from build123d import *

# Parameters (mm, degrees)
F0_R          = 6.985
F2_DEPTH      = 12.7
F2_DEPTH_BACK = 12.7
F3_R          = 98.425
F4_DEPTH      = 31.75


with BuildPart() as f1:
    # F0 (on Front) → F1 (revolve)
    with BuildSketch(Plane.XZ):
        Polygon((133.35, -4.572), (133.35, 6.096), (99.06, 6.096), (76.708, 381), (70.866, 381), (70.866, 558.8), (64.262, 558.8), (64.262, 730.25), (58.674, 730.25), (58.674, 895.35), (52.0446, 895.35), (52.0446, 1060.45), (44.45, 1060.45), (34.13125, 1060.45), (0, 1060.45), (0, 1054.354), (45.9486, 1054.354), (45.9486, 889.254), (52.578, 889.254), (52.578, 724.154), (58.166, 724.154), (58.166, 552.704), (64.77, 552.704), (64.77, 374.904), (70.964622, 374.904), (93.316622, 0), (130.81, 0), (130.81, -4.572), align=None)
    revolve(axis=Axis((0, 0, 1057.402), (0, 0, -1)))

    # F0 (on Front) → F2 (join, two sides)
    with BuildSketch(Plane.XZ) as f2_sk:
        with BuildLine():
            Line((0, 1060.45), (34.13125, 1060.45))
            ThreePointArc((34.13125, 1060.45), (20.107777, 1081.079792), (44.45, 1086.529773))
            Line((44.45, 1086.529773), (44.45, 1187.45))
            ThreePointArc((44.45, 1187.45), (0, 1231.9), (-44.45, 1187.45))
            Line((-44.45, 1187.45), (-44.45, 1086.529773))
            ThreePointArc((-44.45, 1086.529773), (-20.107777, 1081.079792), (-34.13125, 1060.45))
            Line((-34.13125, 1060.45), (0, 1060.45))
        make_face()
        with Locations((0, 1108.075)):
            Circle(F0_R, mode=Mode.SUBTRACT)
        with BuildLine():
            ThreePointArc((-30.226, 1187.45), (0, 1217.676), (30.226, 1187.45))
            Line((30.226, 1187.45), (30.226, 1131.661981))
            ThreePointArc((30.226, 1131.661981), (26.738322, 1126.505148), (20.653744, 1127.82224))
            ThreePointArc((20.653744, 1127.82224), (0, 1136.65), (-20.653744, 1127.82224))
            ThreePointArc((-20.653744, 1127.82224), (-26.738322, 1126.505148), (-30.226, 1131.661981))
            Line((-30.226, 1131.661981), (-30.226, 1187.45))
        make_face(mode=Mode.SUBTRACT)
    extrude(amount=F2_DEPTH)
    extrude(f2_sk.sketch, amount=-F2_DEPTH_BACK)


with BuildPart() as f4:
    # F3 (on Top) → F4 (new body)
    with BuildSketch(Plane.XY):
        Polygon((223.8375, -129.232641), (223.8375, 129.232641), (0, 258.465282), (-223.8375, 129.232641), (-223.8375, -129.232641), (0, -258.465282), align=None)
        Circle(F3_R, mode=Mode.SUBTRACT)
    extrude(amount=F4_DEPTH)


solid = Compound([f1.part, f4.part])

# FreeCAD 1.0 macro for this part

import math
import FreeCAD as App
import Part
import Sketcher
from FreeCAD import Vector
Q = App.Units.Quantity

doc = App.newDocument("Part")
body = doc.addObject("PartDesign::Body", "Body")

# Sketch on XZ plane
sketch1 = doc.addObject("Sketcher::SketchObject", "Sketch")
body.addObject(sketch1)
sketch1.AttachmentSupport = (doc.XZ_Plane, [""])
sketch1.MapMode = "FlatFace"
sketch1.addGeometry(Part.LineSegment(Vector(133.3, -4.6, 0), Vector(133.3, 6.1, 0)), False)
sketch1.addGeometry(Part.LineSegment(Vector(133.3, 6.1, 0), Vector(99.1, 6.1, 0)), False)
sketch1.addGeometry(Part.LineSegment(Vector(99.1, 6.1, 0), Vector(76.7, 381, 0)), False)
sketch1.addGeometry(Part.LineSegment(Vector(76.7, 381, 0), Vector(70.9, 381, 0)), False)
sketch1.addGeometry(Part.LineSegment(Vector(70.9, 381, 0), Vector(70.9, 558.8, 0)), False)
sketch1.addGeometry(Part.LineSegment(Vector(70.9, 558.8, 0), Vector(64.3, 558.8, 0)), False)
sketch1.addGeometry(Part.LineSegment(Vector(64.3, 558.8, 0), Vector(64.3, 730.2, 0)), False)
sketch1.addGeometry(Part.LineSegment(Vector(64.3, 730.2, 0), Vector(58.7, 730.2, 0)), False)
sketch1.addGeometry(Part.LineSegment(Vector(58.7, 730.2, 0), Vector(58.7, 895.4, 0)), False)
sketch1.addGeometry(Part.LineSegment(Vector(58.7, 895.4, 0), Vector(52, 895.4, 0)), False)
sketch1.addGeometry(Part.LineSegment(Vector(52, 895.4, 0), Vector(52, 1060.5, 0)), False)
sketch1.addGeometry(Part.LineSegment(Vector(52, 1060.5, 0), Vector(0, 1060.5, 0)), False)
sketch1.addGeometry(Part.LineSegment(Vector(0, 1060.5, 0), Vector(0, 1054.4, 0)), False)
sketch1.addGeometry(Part.LineSegment(Vector(0, 1054.4, 0), Vector(45.9, 1054.4, 0)), False)
sketch1.addGeometry(Part.LineSegment(Vector(45.9, 1054.4, 0), Vector(45.9, 889.3, 0)), False)
sketch1.addGeometry(Part.LineSegment(Vector(45.9, 889.3, 0), Vector(52.6, 889.3, 0)), False)
sketch1.addGeometry(Part.LineSegment(Vector(52.6, 889.3, 0), Vector(52.6, 724.2, 0)), False)
sketch1.addGeometry(Part.LineSegment(Vector(52.6, 724.2, 0), Vector(58.2, 724.2, 0)), False)
sketch1.addGeometry(Part.LineSegment(Vector(58.2, 724.2, 0), Vector(58.2, 552.7, 0)), False)
sketch1.addGeometry(Part.LineSegment(Vector(58.2, 552.7, 0), Vector(64.8, 552.7, 0)), False)
sketch1.addGeometry(Part.LineSegment(Vector(64.8, 552.7, 0), Vector(64.8, 374.9, 0)), False)
sketch1.addGeometry(Part.LineSegment(Vector(64.8, 374.9, 0), Vector(71, 374.9, 0)), False)
sketch1.addGeometry(Part.LineSegment(Vector(71, 374.9, 0), Vector(93.3, 0, 0)), False)
sketch1.addGeometry(Part.LineSegment(Vector(93.3, 0, 0), Vector(130.8, 0, 0)), False)
sketch1.addGeometry(Part.LineSegment(Vector(130.8, 0, 0), Vector(130.8, -4.6, 0)), False)
sketch1.addGeometry(Part.LineSegment(Vector(130.8, -4.6, 0), Vector(133.3, -4.6, 0)), False)
sketch1.addConstraint(Sketcher.Constraint("Coincident", 0, 2, 1, 1))
sketch1.addConstraint(Sketcher.Constraint("Coincident", 1, 2, 2, 1))
sketch1.addConstraint(Sketcher.Constraint("Coincident", 2, 2, 3, 1))
sketch1.addConstraint(Sketcher.Constraint("Coincident", 3, 2, 4, 1))
sketch1.addConstraint(Sketcher.Constraint("Coincident", 4, 2, 5, 1))
sketch1.addConstraint(Sketcher.Constraint("Coincident", 5, 2, 6, 1))
sketch1.addConstraint(Sketcher.Constraint("Coincident", 6, 2, 7, 1))
sketch1.addConstraint(Sketcher.Constraint("Coincident", 7, 2, 8, 1))
sketch1.addConstraint(Sketcher.Constraint("Coincident", 8, 2, 9, 1))
sketch1.addConstraint(Sketcher.Constraint("Coincident", 9, 2, 10, 1))
sketch1.addConstraint(Sketcher.Constraint("Coincident", 10, 2, 11, 1))
sketch1.addConstraint(Sketcher.Constraint("Coincident", 11, 2, 12, 1))
sketch1.addConstraint(Sketcher.Constraint("Coincident", 12, 2, 13, 1))
sketch1.addConstraint(Sketcher.Constraint("Coincident", 13, 2, 14, 1))
sketch1.addConstraint(Sketcher.Constraint("Coincident", 14, 2, 15, 1))
sketch1.addConstraint(Sketcher.Constraint("Coincident", 15, 2, 16, 1))
sketch1.addConstraint(Sketcher.Constraint("Coincident", 16, 2, 17, 1))
sketch1.addConstraint(Sketcher.Constraint("Coincident", 17, 2, 18, 1))
sketch1.addConstraint(Sketcher.Constraint("Coincident", 18, 2, 19, 1))
sketch1.addConstraint(Sketcher.Constraint("Coincident", 19, 2, 20, 1))
sketch1.addConstraint(Sketcher.Constraint("Coincident", 20, 2, 21, 1))
sketch1.addConstraint(Sketcher.Constraint("Coincident", 21, 2, 22, 1))
sketch1.addConstraint(Sketcher.Constraint("Coincident", 22, 2, 23, 1))
sketch1.addConstraint(Sketcher.Constraint("Coincident", 23, 2, 24, 1))
sketch1.addConstraint(Sketcher.Constraint("Coincident", 24, 2, 25, 1))
sketch1.addConstraint(Sketcher.Constraint("Coincident", 25, 2, 0, 1))
sketch1.addConstraint(Sketcher.Constraint("Vertical", 0))
sketch1.addConstraint(Sketcher.Constraint("Horizontal", 1))
sketch1.addConstraint(Sketcher.Constraint("Horizontal", 3))
sketch1.addConstraint(Sketcher.Constraint("Vertical", 4))
sketch1.addConstraint(Sketcher.Constraint("Horizontal", 5))
sketch1.addConstraint(Sketcher.Constraint("Vertical", 6))
sketch1.addConstraint(Sketcher.Constraint("Horizontal", 7))
sketch1.addConstraint(Sketcher.Constraint("Vertical", 8))
sketch1.addConstraint(Sketcher.Constraint("Horizontal", 9))
sketch1.addConstraint(Sketcher.Constraint("Vertical", 10))
sketch1.addConstraint(Sketcher.Constraint("Horizontal", 11))
sketch1.addConstraint(Sketcher.Constraint("Vertical", 12))
sketch1.addConstraint(Sketcher.Constraint("Horizontal", 13))
sketch1.addConstraint(Sketcher.Constraint("Vertical", 14))
sketch1.addConstraint(Sketcher.Constraint("Horizontal", 15))
sketch1.addConstraint(Sketcher.Constraint("Vertical", 16))
sketch1.addConstraint(Sketcher.Constraint("Horizontal", 17))
sketch1.addConstraint(Sketcher.Constraint("Vertical", 18))
sketch1.addConstraint(Sketcher.Constraint("Horizontal", 19))
sketch1.addConstraint(Sketcher.Constraint("Vertical", 20))
sketch1.addConstraint(Sketcher.Constraint("Horizontal", 21))
sketch1.addConstraint(Sketcher.Constraint("Horizontal", 23))
sketch1.addConstraint(Sketcher.Constraint("Vertical", 24))
sketch1.addConstraint(Sketcher.Constraint("Horizontal", 25))
sketch1.addConstraint(Sketcher.Constraint("PointOnObject", 11, 2, -2))
sketch1.addConstraint(Sketcher.Constraint("PointOnObject", 22, 2, -1))
sketch1.addConstraint(Sketcher.Constraint("Parallel", 2, 22))
sketch1.addConstraint(Sketcher.Constraint("Equal", 9, 15))
sketch1.addConstraint(Sketcher.Constraint("Equal", 7, 17))
sketch1.addConstraint(Sketcher.Constraint("Equal", 5, 19))
sketch1.addConstraint(Sketcher.Constraint("Equal", 8, 10))
sketch1.addConstraint(Sketcher.Constraint("Equal", 10, 14))
sketch1.addConstraint(Sketcher.Constraint("Equal", 14, 16))
sketch1.addConstraint(Sketcher.Constraint("Equal", 6, 18))
sketch1.addConstraint(Sketcher.Constraint("Equal", 4, 20))
sketch1.addConstraint(Sketcher.Constraint("Equal", 2, 22))
sketch1.addConstraint(Sketcher.Constraint("DistanceY", 4, 1, 4, 2, Q("7 in")))
sketch1.addConstraint(Sketcher.Constraint("DistanceX", 25, 1, 25, 2, Q("0.1 in")))
sketch1.addConstraint(Sketcher.Constraint("DistanceY", 8, 1, 8, 2, Q("6.5 in")))
sketch1.addConstraint(Sketcher.Constraint("DistanceY", -1, 1, 2, 2, Q("15 in")))
sketch1.addConstraint(Sketcher.Constraint("DistanceX", 1, 2, 1, 1, Q("1.35 in")))
sketch1.addConstraint(Sketcher.Constraint("DistanceX", 3, 2, 3, 1, Q("0.23 in")))
sketch1.addConstraint(Sketcher.Constraint("DistanceX", 5, 2, 5, 1, Q("0.26 in")))
sketch1.addConstraint(Sketcher.Constraint("DistanceX", 7, 2, 7, 1, Q("0.22 in")))
sketch1.addConstraint(Sketcher.Constraint("DistanceY", 0, 1, 0, 2, Q("0.42 in")))
sketch1.addConstraint(Sketcher.Constraint("DistanceY", 6, 1, 6, 2, Q("6.75 in")))
sketch1.addConstraint(Sketcher.Constraint("DistanceY", 12, 2, 12, 1, Q("0.24 in")))
sketch1.addConstraint(Sketcher.Constraint("DistanceX", -1, 1, 1, 2, Q("3.9 in")))
sketch1.addConstraint(Sketcher.Constraint("DistanceX", 18, 2, 4, 2, Q("0.5 in")))
sketch1.addConstraint(Sketcher.Constraint("DistanceX", 20, 2, 23, 2, Q("2.6 in")))
sketch1.addConstraint(Sketcher.Constraint("DistanceX", 9, 2, 9, 1, Q("0.261 in")))
sketch1.addConstraint(Sketcher.Constraint("DistanceX", 23, 1, 23, 2, 37.493378))
revolution = doc.addObject("PartDesign::Revolution", "Revolution")
body.addObject(revolution)
revolution.Profile = sketch1
revolution.ReferenceAxis = (sketch1, ["V_Axis"])
revolution.Angle = 360

# Sketch on XZ plane
sketch2 = doc.addObject("Sketcher::SketchObject", "Sketch001")
body.addObject(sketch2)
sketch2.AttachmentSupport = (doc.XZ_Plane, [""])
sketch2.MapMode = "FlatFace"
sketch2.addGeometry(Part.ArcOfCircle(Part.Circle(Vector(34, 1076, 0), Vector(0, 0, 1), 15), math.radians(47), math.radians(270)), False)
sketch2.addGeometry(Part.LineSegment(Vector(44, 1087, 0), Vector(44, 1187, 0)), False)
sketch2.addGeometry(Part.ArcOfCircle(Part.Circle(Vector(0, 1187, 0), Vector(0, 0, 1), 44), math.radians(0), math.radians(180)), False)
sketch2.addGeometry(Part.LineSegment(Vector(-44, 1187, 0), Vector(-44, 1087, 0)), False)
sketch2.addGeometry(Part.ArcOfCircle(Part.Circle(Vector(-34, 1076, 0), Vector(0, 0, 1), 15), math.radians(-90), math.radians(133)), False)
sketch2.addGeometry(Part.LineSegment(Vector(-34, 1060, 0), Vector(34, 1060, 0)), False)
sketch2.addGeometry(Part.Circle(Vector(0, 1108, 0), Vector(0, 0, 1), 7), False)
sketch2.addGeometry(Part.LineSegment(Vector(-30, 1132, 0), Vector(-30, 1187, 0)), False)
sketch2.addGeometry(Part.ArcOfCircle(Part.Circle(Vector(0, 1187, 0), Vector(0, 0, 1), 30), math.radians(0), math.radians(180)), False)
sketch2.addGeometry(Part.LineSegment(Vector(30, 1187, 0), Vector(30, 1132, 0)), False)
sketch2.addGeometry(Part.ArcOfCircle(Part.Circle(Vector(25, 1132, 0), Vector(0, 0, 1), 6), math.radians(-136), math.radians(0)), False)
sketch2.addGeometry(Part.ArcOfCircle(Part.Circle(Vector(0, 1108, 0), Vector(0, 0, 1), 29), math.radians(44), math.radians(136)), False)
sketch2.addGeometry(Part.ArcOfCircle(Part.Circle(Vector(-25, 1132, 0), Vector(0, 0, 1), 6), math.radians(180), math.radians(316)), False)
sketch2.addConstraint(Sketcher.Constraint("Coincident", 0, 1, 1, 1))
sketch2.addConstraint(Sketcher.Constraint("Tangent", 1, 2, 2, 1))
sketch2.addConstraint(Sketcher.Constraint("Tangent", 2, 2, 3, 1))
sketch2.addConstraint(Sketcher.Constraint("Coincident", 3, 2, 4, 2))
sketch2.addConstraint(Sketcher.Constraint("Tangent", 4, 1, 5, 1))
sketch2.addConstraint(Sketcher.Constraint("Tangent", 5, 2, 0, 2))
sketch2.addConstraint(Sketcher.Constraint("Tangent", 7, 2, 8, 2))
sketch2.addConstraint(Sketcher.Constraint("Tangent", 8, 1, 9, 1))
sketch2.addConstraint(Sketcher.Constraint("Tangent", 9, 2, 10, 2))
sketch2.addConstraint(Sketcher.Constraint("Tangent", 10, 1, 11, 1))
sketch2.addConstraint(Sketcher.Constraint("Tangent", 11, 2, 12, 2))
sketch2.addConstraint(Sketcher.Constraint("Tangent", 12, 1, 7, 1))
sketch2.addConstraint(Sketcher.Constraint("Vertical", 1))
sketch2.addConstraint(Sketcher.Constraint("Vertical", 3))
sketch2.addConstraint(Sketcher.Constraint("Horizontal", 5))
sketch2.addConstraint(Sketcher.Constraint("Vertical", 7))
sketch2.addConstraint(Sketcher.Constraint("Vertical", 9))
sketch2.addConstraint(Sketcher.Constraint("Coincident", 8, 3, 2, 3))
sketch2.addConstraint(Sketcher.Constraint("Coincident", 11, 3, 6, 3))
sketch2.addConstraint(Sketcher.Constraint("Equal", 0, 4))
sketch2.addConstraint(Sketcher.Constraint("Equal", 10, 12))
sketch2.addConstraint(Sketcher.Constraint("Symmetric", 10, 3, 12, 3, -2))
sketch2.addConstraint(Sketcher.Constraint("Horizontal", 0, 1, 3, 2))
sketch2.addConstraint(Sketcher.Constraint("Diameter", 6, Q("0.55 in")))
sketch2.addConstraint(Sketcher.Constraint("Radius", 2, Q("1.75 in")))
sketch2.addConstraint(Sketcher.Constraint("Radius", 8, Q("1.19 in")))
sketch2.addConstraint(Sketcher.Constraint("Radius", 0, Q("0.59375 in")))
sketch2.addConstraint(Sketcher.Constraint("Radius", 10, Q("0.21875 in")))
sketch2.addConstraint(Sketcher.Constraint("Radius", 11, Q("1.125 in")))
sketch2.addConstraint(Sketcher.Constraint("DistanceX", 5, 1, 5, 2, Q("2.6875 in")))
sketch2.addConstraint(Sketcher.Constraint("DistanceY", -1, 1, 2, 3, Q("46.75 in")))
sketch2.addConstraint(Sketcher.Constraint("DistanceY", -1, 1, 4, 1, Q("41.75 in")))
sketch2.addConstraint(Sketcher.Constraint("DistanceY", -1, 1, 6, 3, Q("43.625 in")))
pad1 = doc.addObject("PartDesign::Pad", "Pad")
body.addObject(pad1)
pad1.Profile = sketch2
pad1.Type = "TwoLengths"
pad1.Length = Q("0.5 in")
pad1.Length2 = Q("0.5 in")
body2 = doc.addObject("PartDesign::Body", "Body001")

# Sketch on XY plane
sketch3 = doc.addObject("Sketcher::SketchObject", "Sketch002")
body2.addObject(sketch3)
sketch3.AttachmentSupport = (doc.getObject("XY_Plane001"), [""])
sketch3.MapMode = "FlatFace"
sketch3.addGeometry(Part.LineSegment(Vector(224, -129, 0), Vector(224, 129, 0)), False)
sketch3.addGeometry(Part.LineSegment(Vector(224, 129, 0), Vector(0, 258, 0)), False)
sketch3.addGeometry(Part.LineSegment(Vector(0, 258, 0), Vector(-224, 129, 0)), False)
sketch3.addGeometry(Part.LineSegment(Vector(-224, 129, 0), Vector(-224, -129, 0)), False)
sketch3.addGeometry(Part.LineSegment(Vector(-224, -129, 0), Vector(0, -258, 0)), False)
sketch3.addGeometry(Part.LineSegment(Vector(0, -258, 0), Vector(224, -129, 0)), False)
sketch3.addGeometry(Part.Circle(Vector(0, 0, 0), Vector(0, 0, 1), 98), False)
sketch3.addConstraint(Sketcher.Constraint("Coincident", 0, 2, 1, 1))
sketch3.addConstraint(Sketcher.Constraint("Coincident", 1, 2, 2, 1))
sketch3.addConstraint(Sketcher.Constraint("Coincident", 2, 2, 3, 1))
sketch3.addConstraint(Sketcher.Constraint("Coincident", 3, 2, 4, 1))
sketch3.addConstraint(Sketcher.Constraint("Coincident", 4, 2, 5, 1))
sketch3.addConstraint(Sketcher.Constraint("Coincident", 5, 2, 0, 1))
sketch3.addConstraint(Sketcher.Constraint("Vertical", 0))
sketch3.addConstraint(Sketcher.Constraint("Vertical", 3))
sketch3.addConstraint(Sketcher.Constraint("Coincident", 6, 3, -1, 1))
sketch3.addConstraint(Sketcher.Constraint("Symmetric", 0, 2, 3, 2, -1, 1))
sketch3.addConstraint(Sketcher.Constraint("Symmetric", 1, 2, 4, 2, -1, 1))
sketch3.addConstraint(Sketcher.Constraint("PointOnObject", 1, 2, -2))
sketch3.addConstraint(Sketcher.Constraint("Parallel", 2, 5))
sketch3.addConstraint(Sketcher.Constraint("Horizontal", 0, 2, 2, 2))
sketch3.addConstraint(Sketcher.Constraint("Diameter", 6, Q("7.75 in")))
sketch3.addConstraint(Sketcher.Constraint("Angle", 1, Q("150 deg")))
sketch3.addConstraint(Sketcher.Constraint("DistanceX", -1, 1, 0, 2, Q("8.8125 in")))
sketch3.addConstraint(Sketcher.Constraint("DistanceY", 0, 1, 0, 2, 258.465282))
pad2 = doc.addObject("PartDesign::Pad", "Pad001")
body2.addObject(pad2)
pad2.Profile = sketch3
pad2.Length = Q("1.25 in")

doc.recompute()
